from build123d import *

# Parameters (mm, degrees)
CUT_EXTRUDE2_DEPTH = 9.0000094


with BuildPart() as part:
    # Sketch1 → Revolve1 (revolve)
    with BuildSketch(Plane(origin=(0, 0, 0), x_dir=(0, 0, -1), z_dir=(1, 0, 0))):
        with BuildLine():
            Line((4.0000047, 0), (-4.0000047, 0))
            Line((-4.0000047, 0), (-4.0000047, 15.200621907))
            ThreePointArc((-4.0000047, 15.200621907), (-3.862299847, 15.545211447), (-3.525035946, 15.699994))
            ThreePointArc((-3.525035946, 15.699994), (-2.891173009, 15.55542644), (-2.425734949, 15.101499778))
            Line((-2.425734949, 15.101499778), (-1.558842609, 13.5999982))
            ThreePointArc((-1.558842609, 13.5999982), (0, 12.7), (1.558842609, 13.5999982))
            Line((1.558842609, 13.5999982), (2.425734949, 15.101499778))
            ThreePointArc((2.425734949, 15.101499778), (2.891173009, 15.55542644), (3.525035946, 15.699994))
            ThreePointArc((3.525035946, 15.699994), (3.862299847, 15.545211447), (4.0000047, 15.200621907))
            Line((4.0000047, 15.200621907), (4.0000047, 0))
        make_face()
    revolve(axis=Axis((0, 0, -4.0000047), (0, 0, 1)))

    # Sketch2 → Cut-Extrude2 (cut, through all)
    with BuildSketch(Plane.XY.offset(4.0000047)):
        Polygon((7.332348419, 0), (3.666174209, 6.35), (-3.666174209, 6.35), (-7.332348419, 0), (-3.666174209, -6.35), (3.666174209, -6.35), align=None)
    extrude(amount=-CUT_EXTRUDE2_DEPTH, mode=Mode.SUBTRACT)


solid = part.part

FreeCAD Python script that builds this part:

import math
import FreeCAD as App
import Part
import Sketcher

V = App.Vector
Q = App.Units.Quantity


def add_polygon(sketch, points):
    """Adds a closed chain of lines whose ends are joined by coincident constraints."""
    first, n = sketch.GeometryCount, len(points)
    for a, b in zip(points, points[1:] + points[:1]):
        sketch.addGeometry(Part.LineSegment(App.Vector(*a, 0), App.Vector(*b, 0)), False)
    for i in range(n):
        sketch.addConstraint(Sketcher.Constraint("Coincident", first + i, 2, first + (i + 1) % n, 1))

doc = App.newDocument("Part")
body = doc.addObject("PartDesign::Body", "Body")

# Sketch on YZ plane
sketch1 = doc.addObject("Sketcher::SketchObject", "Sketch")
body.addObject(sketch1)
sketch1.AttachmentSupport = (doc.YZ_Plane, [""])
sketch1.MapMode = "FlatFace"
sketch1.addGeometry([
    Part.LineSegment(V(0, 4.000005, 0), V(0, -4.000005, 0)),  # 0
    Part.LineSegment(V(0, -4.000005, 0), V(15.200622, -4.000005, 0)),  # 1
    Part.ArcOfCircle(Part.Circle(V(15.200622, -3.500006, 0), V(0, 0, 1), 0.499999), math.radians(-90), math.radians(-2.86946)),  # 2
    Part.ArcOfCircle(Part.Circle(V(14.501501, -3.464963, 0), V(0, 0, 1), 1.199998), math.radians(-2.86946), math.radians(60)),  # 3
    Part.LineSegment(V(15.1015, -2.425735, 0), V(13.599998, -1.558843, 0)),  # 4
    Part.ArcOfCircle(Part.Circle(V(14.499996, 0, 0), V(0, 0, 1), 1.799996), math.radians(120), math.radians(240)),  # 5
    Part.LineSegment(V(13.599998, 1.558843, 0), V(15.1015, 2.425735, 0)),  # 6
    Part.ArcOfCircle(Part.Circle(V(14.501501, 3.464963, 0), V(0, 0, 1), 1.199998), math.radians(-60), math.radians(2.86946)),  # 7
    Part.ArcOfCircle(Part.Circle(V(15.200622, 3.500006, 0), V(0, 0, 1), 0.499999), math.radians(2.86946), math.radians(90)),  # 8
    Part.LineSegment(V(15.200622, 4.000005, 0), V(0, 4.000005, 0)),  # 9
], False)
sketch1.addConstraint([
    Sketcher.Constraint("Coincident", 0, 2, 1, 1),
    Sketcher.Constraint("Tangent", 1, 2, 2, 1),
    Sketcher.Constraint("Tangent", 2, 2, 3, 1),
    Sketcher.Constraint("Tangent", 3, 2, 4, 1),
    Sketcher.Constraint("Tangent", 4, 2, 5, 2),
    Sketcher.Constraint("Tangent", 5, 1, 6, 1),
    Sketcher.Constraint("Tangent", 6, 2, 7, 1),
    Sketcher.Constraint("Tangent", 7, 2, 8, 1),
    Sketcher.Constraint("Tangent", 8, 2, 9, 1),
    Sketcher.Constraint("Coincident", 9, 2, 0, 1),
    Sketcher.Constraint("Vertical", 0),
    Sketcher.Constraint("Horizontal", 1),
    Sketcher.Constraint("Horizontal", 9),
    Sketcher.Constraint("Equal", 3, 7),
    Sketcher.Constraint("Equal", 2, 8),
    Sketcher.Constraint("Symmetric", 0, 2, 9, 2, -1, 1),
    Sketcher.Constraint("Symmetric", 3, 3, 7, 3, -1),
    Sketcher.Constraint("PointOnObject", 5, 3, -1),
    Sketcher.Constraint("Radius", 2, Q("0.499999 mm")),
    Sketcher.Constraint("Angle", 4, Q("150 deg")),
    Sketcher.Constraint("DistanceX", -1, 1, 4, 2, Q("13.599998 mm")),
    Sketcher.Constraint("DistanceX", 3, 3, 3, 2, Q("0.599999 mm")),
    Sketcher.Constraint("DistanceX", 4, 2, 5, 3, Q("0.899998 mm")),
    Sketcher.Constraint("DistanceX", 1, 1, 1, 2, Q("15.200622 mm")),
    Sketcher.Constraint("DistanceY", 0, 2, 0, 1, Q("8.000009 mm")),
])
revolution = doc.addObject("PartDesign::Revolution", "Revolution")
body.addObject(revolution)
revolution.Profile = sketch1
revolution.ReferenceAxis = (sketch1, ["V_Axis"])
revolution.Angle = 360

# Sketch on XY plane
sketch2 = doc.addObject("Sketcher::SketchObject", "Sketch001")
body.addObject(sketch2)
sketch2.AttachmentSupport = (doc.XY_Plane, [""])
sketch2.MapMode = "FlatFace"
sketch2.AttachmentOffset = App.Placement(V(0, 0, 4.000005), App.Rotation())
add_polygon(sketch2, [(7.332348, 0), (3.666174, 6.35), (-3.666174, 6.35), (-7.332348, 0), (-3.666174, -6.35), (3.666174, -6.35)])  # lines 0-5
sketch2.addConstraint([
    Sketcher.Constraint("Horizontal", 1),
    Sketcher.Constraint("Horizontal", 4),
    Sketcher.Constraint("Symmetric", 0, 2, 3, 2, -1, 1),
    Sketcher.Constraint("Symmetric", 2, 2, 5, 2, -1, 1),
    Sketcher.Constraint("PointOnObject", 2, 2, -1),
    Sketcher.Constraint("Parallel", 2, 5),
    Sketcher.Constraint("Vertical", 1, 2, 3, 2),
    Sketcher.Constraint("Angle", 0, Q("120 deg")),
    Sketcher.Constraint("DistanceY", 3, 2, 1, 2, Q("12.7 mm")),
    Sketcher.Constraint("DistanceX", 1, 2, 1, 1, Q("7.332348 mm")),
])
pocket1 = doc.addObject("PartDesign::Pocket", "Pocket")
body.addObject(pocket1)
pocket1.Profile = sketch2
pocket1.Type = "ThroughAll"

doc.recompute()
